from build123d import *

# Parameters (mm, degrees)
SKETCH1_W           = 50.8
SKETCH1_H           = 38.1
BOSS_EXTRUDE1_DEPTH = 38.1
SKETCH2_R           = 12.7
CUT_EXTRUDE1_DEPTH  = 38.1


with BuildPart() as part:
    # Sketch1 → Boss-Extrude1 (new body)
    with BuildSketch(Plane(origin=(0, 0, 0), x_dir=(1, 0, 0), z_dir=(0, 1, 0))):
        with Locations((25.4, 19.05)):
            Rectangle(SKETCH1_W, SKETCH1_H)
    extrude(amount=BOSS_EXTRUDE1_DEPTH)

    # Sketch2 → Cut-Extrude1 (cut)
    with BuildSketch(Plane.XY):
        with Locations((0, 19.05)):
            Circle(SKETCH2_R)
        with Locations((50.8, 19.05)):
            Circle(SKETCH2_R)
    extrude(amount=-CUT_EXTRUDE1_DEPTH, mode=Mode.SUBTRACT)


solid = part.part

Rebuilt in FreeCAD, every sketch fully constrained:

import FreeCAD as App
import Part
import Sketcher
from FreeCAD import Vector
Q = App.Units.Quantity


def add_polygon(sketch, points):
    """Adds a closed chain of lines whose ends are joined by coincident constraints."""
    first, n = sketch.GeometryCount, len(points)
    for a, b in zip(points, points[1:] + points[:1]):
        sketch.addGeometry(Part.LineSegment(App.Vector(*a, 0), App.Vector(*b, 0)), False)
    for i in range(n):
        sketch.addConstraint(Sketcher.Constraint("Coincident", first + i, 2, first + (i + 1) % n, 1))

doc = App.newDocument("Part")
params = doc.addObject("Spreadsheet::Sheet", "Params")
for row, (alias, value) in enumerate([
    ("sketch1_width", "2 in"),
    ("sketch1_height", "1.5 in"),
    ("pad1_length", "1.5 in"),
    ("sketch2_diameter", "1 in"),
    ("pocket1_length", "1.5 in"),
], start=1):
    params.set(f"A{row}", alias)
    params.set(f"B{row}", "=" + value)
    params.setAlias(f"B{row}", alias)

body = doc.addObject("PartDesign::Body", "Body")

sketch1 = doc.addObject("Sketcher::SketchObject", "Sketch")
body.addObject(sketch1)
sketch1.AttachmentSupport = (doc.XZ_Plane, [""])
sketch1.MapMode = "FlatFace"
add_polygon(sketch1, [(0, -38.1), (0, 0), (50.8, 0), (50.8, -38.1)])
sketch1.addConstraint(Sketcher.Constraint("Vertical", 0))
sketch1.addConstraint(Sketcher.Constraint("Horizontal", 1))
sketch1.addConstraint(Sketcher.Constraint("Vertical", 2))
sketch1.addConstraint(Sketcher.Constraint("Horizontal", 3))
sketch1.addConstraint(Sketcher.Constraint("Coincident", 0, 2, -1, 1))
sketch1.addConstraint(Sketcher.Constraint("DistanceX", 1, 1, 1, 2, Q("2 in")))
sketch1.addConstraint(Sketcher.Constraint("DistanceY", 0, 1, 0, 2, Q("1.5 in")))
sketch1.setExpression("Constraints[9]", "Params.sketch1_width")
sketch1.setExpression("Constraints[10]", "Params.sketch1_height")
pad1 = doc.addObject("PartDesign::Pad", "Pad")
body.addObject(pad1)
pad1.Profile = sketch1
pad1.setExpression("Length", "Params.pad1_length")
pad1.Reversed = True

sketch2 = doc.addObject("Sketcher::SketchObject", "Sketch001")
body.addObject(sketch2)
sketch2.AttachmentSupport = (doc.XY_Plane, [""])
sketch2.MapMode = "FlatFace"
sketch2.addGeometry(Part.Circle(Vector(0, 19.05, 0), Vector(0, 0, 1), 12.7), False)
sketch2.addGeometry(Part.Circle(Vector(50.8, 19.05, 0), Vector(0, 0, 1), 12.7), False)
sketch2.addConstraint(Sketcher.Constraint("Equal", 0, 1))
sketch2.addConstraint(Sketcher.Constraint("PointOnObject", 0, 3, -2))
sketch2.addConstraint(Sketcher.Constraint("Horizontal", 0, 3, 1, 3))
sketch2.addConstraint(Sketcher.Constraint("Diameter", 0, Q("1 in")))
sketch2.addConstraint(Sketcher.Constraint("DistanceX", -1, 1, 1, 3, Q("2 in")))
sketch2.addConstraint(Sketcher.Constraint("DistanceY", -1, 1, 0, 3, Q("0.75 in")))
sketch2.setExpression("Constraints[3]", "Params.sketch2_diameter")
pocket1 = doc.addObject("PartDesign::Pocket", "Pocket")
body.addObject(pocket1)
pocket1.Profile = sketch2
pocket1.setExpression("Length", "Params.pocket1_length")

doc.recompute()
